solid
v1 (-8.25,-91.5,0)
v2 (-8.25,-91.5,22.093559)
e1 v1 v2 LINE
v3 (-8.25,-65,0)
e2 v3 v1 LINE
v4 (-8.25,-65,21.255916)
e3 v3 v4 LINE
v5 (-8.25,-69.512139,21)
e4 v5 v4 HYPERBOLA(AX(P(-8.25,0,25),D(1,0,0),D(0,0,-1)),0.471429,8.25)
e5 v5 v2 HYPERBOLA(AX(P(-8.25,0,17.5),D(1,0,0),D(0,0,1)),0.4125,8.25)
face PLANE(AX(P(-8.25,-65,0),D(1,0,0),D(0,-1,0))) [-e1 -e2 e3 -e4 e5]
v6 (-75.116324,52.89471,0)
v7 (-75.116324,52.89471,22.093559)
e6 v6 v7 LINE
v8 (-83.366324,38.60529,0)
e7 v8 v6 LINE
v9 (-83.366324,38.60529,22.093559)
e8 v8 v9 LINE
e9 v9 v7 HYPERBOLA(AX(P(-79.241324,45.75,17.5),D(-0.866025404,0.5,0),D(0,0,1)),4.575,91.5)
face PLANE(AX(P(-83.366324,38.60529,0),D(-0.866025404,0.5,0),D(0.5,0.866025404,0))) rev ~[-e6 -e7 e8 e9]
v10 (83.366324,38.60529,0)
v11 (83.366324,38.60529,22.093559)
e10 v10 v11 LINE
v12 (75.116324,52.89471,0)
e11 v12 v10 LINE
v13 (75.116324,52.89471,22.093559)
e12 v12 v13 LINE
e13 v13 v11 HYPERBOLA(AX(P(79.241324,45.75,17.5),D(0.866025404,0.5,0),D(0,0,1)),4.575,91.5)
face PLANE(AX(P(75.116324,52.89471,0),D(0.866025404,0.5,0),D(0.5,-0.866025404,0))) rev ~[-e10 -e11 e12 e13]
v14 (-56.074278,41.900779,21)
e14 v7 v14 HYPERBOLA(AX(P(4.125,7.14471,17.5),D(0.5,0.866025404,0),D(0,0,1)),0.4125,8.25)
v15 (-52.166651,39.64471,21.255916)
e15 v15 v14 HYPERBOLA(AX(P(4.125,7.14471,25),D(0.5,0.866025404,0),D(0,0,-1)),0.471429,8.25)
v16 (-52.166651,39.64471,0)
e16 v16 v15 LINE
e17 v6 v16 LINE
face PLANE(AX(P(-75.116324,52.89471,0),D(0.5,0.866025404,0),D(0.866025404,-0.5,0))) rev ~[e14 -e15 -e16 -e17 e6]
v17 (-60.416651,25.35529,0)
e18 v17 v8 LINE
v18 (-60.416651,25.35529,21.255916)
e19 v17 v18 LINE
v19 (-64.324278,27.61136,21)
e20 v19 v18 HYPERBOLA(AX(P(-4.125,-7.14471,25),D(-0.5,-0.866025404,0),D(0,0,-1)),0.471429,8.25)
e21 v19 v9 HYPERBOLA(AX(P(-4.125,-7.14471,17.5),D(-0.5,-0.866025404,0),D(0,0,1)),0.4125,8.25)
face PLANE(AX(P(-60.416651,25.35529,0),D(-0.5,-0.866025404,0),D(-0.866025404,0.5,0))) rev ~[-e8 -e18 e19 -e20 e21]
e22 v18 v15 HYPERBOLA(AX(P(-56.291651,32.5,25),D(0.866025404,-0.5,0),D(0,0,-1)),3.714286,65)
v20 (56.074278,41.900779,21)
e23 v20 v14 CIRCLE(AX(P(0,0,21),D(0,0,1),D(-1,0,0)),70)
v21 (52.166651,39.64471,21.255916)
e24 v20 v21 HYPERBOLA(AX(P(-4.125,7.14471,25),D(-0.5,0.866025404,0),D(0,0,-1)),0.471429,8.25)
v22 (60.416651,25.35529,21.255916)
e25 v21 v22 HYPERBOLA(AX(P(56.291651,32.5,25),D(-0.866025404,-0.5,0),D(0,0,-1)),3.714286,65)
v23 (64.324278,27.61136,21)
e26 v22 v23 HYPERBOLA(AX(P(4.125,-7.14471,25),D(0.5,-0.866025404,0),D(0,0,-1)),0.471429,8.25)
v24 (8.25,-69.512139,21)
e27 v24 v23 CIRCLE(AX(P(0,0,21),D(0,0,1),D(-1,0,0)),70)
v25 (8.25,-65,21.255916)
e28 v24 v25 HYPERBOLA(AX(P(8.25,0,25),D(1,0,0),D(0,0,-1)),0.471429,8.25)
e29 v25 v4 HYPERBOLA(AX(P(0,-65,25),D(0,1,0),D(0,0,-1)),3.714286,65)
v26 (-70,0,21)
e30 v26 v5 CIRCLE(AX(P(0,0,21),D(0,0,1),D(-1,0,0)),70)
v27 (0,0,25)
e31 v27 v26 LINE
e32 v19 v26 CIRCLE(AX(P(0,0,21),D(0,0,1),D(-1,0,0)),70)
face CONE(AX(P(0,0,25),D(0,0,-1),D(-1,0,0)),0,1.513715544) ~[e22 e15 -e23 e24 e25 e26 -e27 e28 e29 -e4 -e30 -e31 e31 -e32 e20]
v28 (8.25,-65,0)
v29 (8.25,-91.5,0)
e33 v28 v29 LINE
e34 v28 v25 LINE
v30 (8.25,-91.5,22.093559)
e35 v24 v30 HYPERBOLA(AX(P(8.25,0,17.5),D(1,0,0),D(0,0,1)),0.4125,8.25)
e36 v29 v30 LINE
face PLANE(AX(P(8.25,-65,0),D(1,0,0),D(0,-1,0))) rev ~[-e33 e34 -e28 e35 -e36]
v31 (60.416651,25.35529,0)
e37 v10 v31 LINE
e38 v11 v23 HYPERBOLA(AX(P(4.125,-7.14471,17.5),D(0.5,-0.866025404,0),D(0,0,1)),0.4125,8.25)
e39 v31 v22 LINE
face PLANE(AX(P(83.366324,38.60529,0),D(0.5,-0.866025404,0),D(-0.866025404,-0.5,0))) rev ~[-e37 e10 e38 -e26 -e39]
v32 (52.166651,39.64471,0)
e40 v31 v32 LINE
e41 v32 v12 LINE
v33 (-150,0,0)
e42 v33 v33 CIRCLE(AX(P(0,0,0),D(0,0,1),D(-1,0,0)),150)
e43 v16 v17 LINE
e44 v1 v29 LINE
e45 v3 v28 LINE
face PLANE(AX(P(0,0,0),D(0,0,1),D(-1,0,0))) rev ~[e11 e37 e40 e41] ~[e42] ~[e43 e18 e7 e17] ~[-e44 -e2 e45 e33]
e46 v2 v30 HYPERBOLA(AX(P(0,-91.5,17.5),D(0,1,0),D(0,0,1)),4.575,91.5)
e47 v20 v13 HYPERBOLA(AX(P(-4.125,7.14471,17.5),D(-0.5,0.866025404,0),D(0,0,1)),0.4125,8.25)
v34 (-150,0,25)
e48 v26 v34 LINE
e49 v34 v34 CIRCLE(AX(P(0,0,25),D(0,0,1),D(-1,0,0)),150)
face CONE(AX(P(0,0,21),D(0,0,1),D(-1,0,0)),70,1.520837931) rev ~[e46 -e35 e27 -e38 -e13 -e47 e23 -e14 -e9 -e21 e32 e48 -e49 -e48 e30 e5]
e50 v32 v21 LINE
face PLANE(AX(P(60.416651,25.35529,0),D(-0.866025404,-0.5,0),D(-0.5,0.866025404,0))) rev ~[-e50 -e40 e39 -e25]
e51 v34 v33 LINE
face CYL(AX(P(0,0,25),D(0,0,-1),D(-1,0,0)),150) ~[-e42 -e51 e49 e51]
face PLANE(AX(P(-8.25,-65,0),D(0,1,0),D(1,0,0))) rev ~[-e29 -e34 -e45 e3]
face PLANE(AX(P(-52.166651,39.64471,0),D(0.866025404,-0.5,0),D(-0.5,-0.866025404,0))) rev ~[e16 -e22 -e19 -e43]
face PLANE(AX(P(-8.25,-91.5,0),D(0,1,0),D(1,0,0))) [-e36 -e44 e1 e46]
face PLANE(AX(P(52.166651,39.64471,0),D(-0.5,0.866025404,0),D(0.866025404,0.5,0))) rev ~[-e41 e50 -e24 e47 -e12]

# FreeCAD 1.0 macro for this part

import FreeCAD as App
import Part
import Sketcher
from FreeCAD import Vector
Q = App.Units.Quantity

doc = App.newDocument("Part")
body = doc.addObject("PartDesign::Body", "Body")

sketch1 = body.newObject("Sketcher::SketchObject", "Sketch")
sketch1.AttachmentSupport = (doc.getObject("XZ_Plane"), [""])
sketch1.MapMode = "FlatFace"
sketch1.addGeometry([
    Part.LineSegment(Vector(-150, 0, 0), Vector(0, 0, 0)),
    Part.LineSegment(Vector(0, 0, 0), Vector(0, 25, 0)),
    Part.LineSegment(Vector(0, 25, 0), Vector(-70, 21, 0)),
    Part.LineSegment(Vector(-70, 21, 0), Vector(-150, 25, 0)),
    Part.LineSegment(Vector(-150, 25, 0), Vector(-150, 0, 0)),
], False)
sketch1.addConstraint([
    Sketcher.Constraint("Coincident", 0, 2, 1, 1),
    Sketcher.Constraint("Coincident", 1, 2, 2, 1),
    Sketcher.Constraint("Coincident", 2, 2, 3, 1),
    Sketcher.Constraint("Coincident", 3, 2, 4, 1),
    Sketcher.Constraint("Coincident", 4, 2, 0, 1),
    Sketcher.Constraint("Horizontal", 0),
    Sketcher.Constraint("Vertical", 1),
    Sketcher.Constraint("Vertical", 4),
    Sketcher.Constraint("Coincident", 0, 2, -1, 1),
    Sketcher.Constraint("Horizontal", 1, 2, 3, 2),
    Sketcher.Constraint("DistanceX", 0, 1, 0, 2, 150.0),
    Sketcher.Constraint("DistanceY", 1, 1, 1, 2, 25.0),
    Sketcher.Constraint("DistanceX", 2, 2, -1, 1, 70.0),
    Sketcher.Constraint("DistanceY", -1, 1, 2, 2, 21.0),
])
revolution = body.newObject("PartDesign::Revolution", "Revolution")
revolution.Profile = sketch1
revolution.ReferenceAxis = (sketch1, ["V_Axis"])
revolution.Angle = 360

sketch2 = body.newObject("Sketcher::SketchObject", "Sketch001")
sketch2.AttachmentSupport = (doc.getObject("XY_Plane"), [""])
sketch2.MapMode = "FlatFace"
sketch2.addGeometry([
    Part.LineSegment(Vector(-8, -92, 0), Vector(-8, -65, 0)),
    Part.LineSegment(Vector(-8, -65, 0), Vector(8, -65, 0)),
    Part.LineSegment(Vector(8, -65, 0), Vector(8, -92, 0)),
    Part.LineSegment(Vector(8, -92, 0), Vector(-8, -92, 0)),
    Part.LineSegment(Vector(-52, 40, 0), Vector(-60, 25, 0)),
    Part.LineSegment(Vector(-60, 25, 0), Vector(-83, 39, 0)),
    Part.LineSegment(Vector(-83, 39, 0), Vector(-75, 53, 0)),
    Part.LineSegment(Vector(-75, 53, 0), Vector(-52, 40, 0)),
    Part.LineSegment(Vector(60, 25, 0), Vector(52, 40, 0)),
    Part.LineSegment(Vector(52, 40, 0), Vector(75, 53, 0)),
    Part.LineSegment(Vector(75, 53, 0), Vector(83, 39, 0)),
    Part.LineSegment(Vector(83, 39, 0), Vector(60, 25, 0)),
], False)
sketch2.addConstraint([
    Sketcher.Constraint("Coincident", 0, 2, 1, 1),
    Sketcher.Constraint("Coincident", 1, 2, 2, 1),
    Sketcher.Constraint("Coincident", 2, 2, 3, 1),
    Sketcher.Constraint("Coincident", 3, 2, 0, 1),
    Sketcher.Constraint("Coincident", 4, 2, 5, 1),
    Sketcher.Constraint("Coincident", 5, 2, 6, 1),
    Sketcher.Constraint("Coincident", 6, 2, 7, 1),
    Sketcher.Constraint("Coincident", 7, 2, 4, 1),
    Sketcher.Constraint("Coincident", 8, 2, 9, 1),
    Sketcher.Constraint("Coincident", 9, 2, 10, 1),
    Sketcher.Constraint("Coincident", 10, 2, 11, 1),
    Sketcher.Constraint("Coincident", 11, 2, 8, 1),
    Sketcher.Constraint("Vertical", 0),
    Sketcher.Constraint("Horizontal", 1),
    Sketcher.Constraint("Vertical", 2),
    Sketcher.Constraint("Horizontal", 3),
    Sketcher.Constraint("Symmetric", 7, 2, 8, 2, -2),
    Sketcher.Constraint("Symmetric", 6, 2, 9, 2, -2),
    Sketcher.Constraint("Symmetric", 5, 2, 10, 2, -2),
    Sketcher.Constraint("Symmetric", 4, 2, 11, 2, -2),
    Sketcher.Constraint("Perpendicular", 4, 5),
    Sketcher.Constraint("Perpendicular", 5, 6),
    Sketcher.Constraint("Perpendicular", 6, 7),
    Sketcher.Constraint("Angle", 4, Q("-120 deg")),
    Sketcher.Constraint("DistanceX", 1, 1, 1, 2, 16.5),
    Sketcher.Constraint("DistanceY", 0, 1, 0, 2, 26.5),
    Sketcher.Constraint("DistanceY", 0, 2, -1, 1, 65.0),
    Sketcher.Constraint("Distance", 4, 16.5),
    Sketcher.Constraint("Distance", 5, 26.5),
    Sketcher.Constraint("DistanceX", 0, 2, -1, 1, 8.25),
    Sketcher.Constraint("DistanceX", 4, 2, -1, 1, 60.416651),
    Sketcher.Constraint("DistanceY", -1, 1, 4, 2, 25.35529),
])
pocket1 = body.newObject("PartDesign::Pocket", "Pocket")
pocket1.Profile = sketch2
pocket1.Type = "ThroughAll"
pocket1.Reversed = True

doc.recompute()
